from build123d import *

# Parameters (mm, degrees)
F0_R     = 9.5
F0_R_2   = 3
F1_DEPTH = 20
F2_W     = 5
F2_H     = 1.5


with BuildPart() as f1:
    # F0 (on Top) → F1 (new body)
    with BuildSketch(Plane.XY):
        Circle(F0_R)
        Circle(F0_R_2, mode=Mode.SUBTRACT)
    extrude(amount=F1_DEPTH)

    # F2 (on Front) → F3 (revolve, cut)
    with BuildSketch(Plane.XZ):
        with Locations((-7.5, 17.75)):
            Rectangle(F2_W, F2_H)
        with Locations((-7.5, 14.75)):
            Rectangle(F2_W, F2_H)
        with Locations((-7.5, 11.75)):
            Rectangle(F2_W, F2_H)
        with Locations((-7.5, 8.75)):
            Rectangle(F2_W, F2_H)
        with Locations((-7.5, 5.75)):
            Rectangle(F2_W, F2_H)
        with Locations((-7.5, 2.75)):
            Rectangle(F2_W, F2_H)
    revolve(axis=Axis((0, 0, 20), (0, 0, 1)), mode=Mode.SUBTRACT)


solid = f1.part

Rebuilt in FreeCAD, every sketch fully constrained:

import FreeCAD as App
import Part
import Sketcher
Q = App.Units.Quantity


def add_polygon(sketch, points):
    """Adds a closed chain of lines whose ends are joined by coincident constraints."""
    first, n = sketch.GeometryCount, len(points)
    for a, b in zip(points, points[1:] + points[:1]):
        sketch.addGeometry(Part.LineSegment(App.Vector(*a, 0), App.Vector(*b, 0)), False)
    for i in range(n):
        sketch.addConstraint(Sketcher.Constraint("Coincident", first + i, 2, first + (i + 1) % n, 1))

doc = App.newDocument("Part")
params = doc.addObject("Spreadsheet::Sheet", "Params")
for row, (alias, value) in enumerate([
    ("sketch1_diameter", "19 mm"),
    ("sketch1_diameter2", "6 mm"),
    ("pad1_length", "20 mm"),
    ("sketch2_width", "5 mm"),
    ("sketch2_height", "1.5 mm"),
    ("groove_angle", "360 deg"),
], start=1):
    params.set(f"A{row}", alias)
    params.set(f"B{row}", "=" + value)
    params.setAlias(f"B{row}", alias)

body = doc.addObject("PartDesign::Body", "Body")

# Sketch on XY plane
sketch1 = doc.addObject("Sketcher::SketchObject", "Sketch")
body.addObject(sketch1)
sketch1.AttachmentSupport = (doc.XY_Plane, [""])
sketch1.MapMode = "FlatFace"
sketch1.addGeometry([
    Part.Circle(App.Vector(0, 0, 0), App.Vector(0, 0, 1), 9.5),
    Part.Circle(App.Vector(0, 0, 0), App.Vector(0, 0, 1), 3),
], False)
sketch1.addConstraint([
    Sketcher.Constraint("Coincident", 0, 3, -1, 1),
    Sketcher.Constraint("Coincident", 1, 3, -1, 1),
    Sketcher.Constraint("Diameter", 0, Q("19 mm")),
    Sketcher.Constraint("Diameter", 1, Q("6 mm")),
])
sketch1.setExpression("Constraints[2]", "Params.sketch1_diameter")
sketch1.setExpression("Constraints[3]", "Params.sketch1_diameter2")
pad1 = doc.addObject("PartDesign::Pad", "Pad")
body.addObject(pad1)
pad1.Profile = sketch1
pad1.setExpression("Length", "Params.pad1_length")

# Sketch on XZ plane
sketch2 = doc.addObject("Sketcher::SketchObject", "Sketch001")
body.addObject(sketch2)
sketch2.AttachmentSupport = (doc.XZ_Plane, [""])
sketch2.MapMode = "FlatFace"
add_polygon(sketch2, [(-10, 18.5), (-10, 17), (-5, 17), (-5, 18.5)])  # lines 0-3
add_polygon(sketch2, [(-10, 15.5), (-10, 14), (-5, 14), (-5, 15.5)])  # lines 4-7
add_polygon(sketch2, [(-10, 12.5), (-10, 11), (-5, 11), (-5, 12.5)])  # lines 8-11
add_polygon(sketch2, [(-10, 9.5), (-10, 8), (-5, 8), (-5, 9.5)])  # lines 12-15
add_polygon(sketch2, [(-10, 6.5), (-10, 5), (-5, 5), (-5, 6.5)])  # lines 16-19
add_polygon(sketch2, [(-10, 3.5), (-10, 2), (-5, 2), (-5, 3.5)])  # lines 20-23
sketch2.addConstraint([
    Sketcher.Constraint("Vertical", 0),
    Sketcher.Constraint("Horizontal", 1),
    Sketcher.Constraint("Vertical", 2),
    Sketcher.Constraint("Horizontal", 3),
    Sketcher.Constraint("Vertical", 4),
    Sketcher.Constraint("Horizontal", 5),
    Sketcher.Constraint("Vertical", 6),
    Sketcher.Constraint("Horizontal", 7),
    Sketcher.Constraint("Vertical", 8),
    Sketcher.Constraint("Horizontal", 9),
    Sketcher.Constraint("Vertical", 10),
    Sketcher.Constraint("Horizontal", 11),
    Sketcher.Constraint("Vertical", 12),
    Sketcher.Constraint("Horizontal", 13),
    Sketcher.Constraint("Vertical", 14),
    Sketcher.Constraint("Horizontal", 15),
    Sketcher.Constraint("Vertical", 16),
    Sketcher.Constraint("Horizontal", 17),
    Sketcher.Constraint("Vertical", 18),
    Sketcher.Constraint("Horizontal", 19),
    Sketcher.Constraint("Vertical", 20),
    Sketcher.Constraint("Horizontal", 21),
    Sketcher.Constraint("Vertical", 22),
    Sketcher.Constraint("Horizontal", 23),
    Sketcher.Constraint("Vertical", 3, 2, 4, 2),
    Sketcher.Constraint("Vertical", 2, 2, 5, 2),
    Sketcher.Constraint("Vertical", 7, 2, 8, 2),
    Sketcher.Constraint("Vertical", 6, 2, 9, 2),
    Sketcher.Constraint("Vertical", 11, 2, 12, 2),
    Sketcher.Constraint("Vertical", 10, 2, 13, 2),
    Sketcher.Constraint("Vertical", 15, 2, 16, 2),
    Sketcher.Constraint("Vertical", 14, 2, 17, 2),
    Sketcher.Constraint("Vertical", 19, 2, 20, 2),
    Sketcher.Constraint("Vertical", 18, 2, 21, 2),
    Sketcher.Constraint("Equal", 2, 4),
    Sketcher.Constraint("Equal", 6, 8),
    Sketcher.Constraint("Equal", 10, 12),
    Sketcher.Constraint("Equal", 14, 16),
    Sketcher.Constraint("Equal", 18, 20),
    Sketcher.Constraint("DistanceX", 1, 1, 1, 2, Q("5 mm")),
    Sketcher.Constraint("DistanceY", 0, 2, 0, 1, Q("1.5 mm")),
    Sketcher.Constraint("DistanceX", 0, 2, -1, 1, Q("10 mm")),
    Sketcher.Constraint("DistanceY", -1, 1, 0, 2, Q("17 mm")),
    Sketcher.Constraint("DistanceY", -1, 1, 4, 2, Q("14 mm")),
    Sketcher.Constraint("DistanceY", -1, 1, 8, 2, Q("11 mm")),
    Sketcher.Constraint("DistanceY", -1, 1, 12, 2, Q("8 mm")),
    Sketcher.Constraint("DistanceY", -1, 1, 16, 2, Q("5 mm")),
    Sketcher.Constraint("DistanceY", -1, 1, 20, 2, Q("2 mm")),
])
sketch2.setExpression("Constraints[63]", "Params.sketch2_width")
sketch2.setExpression("Constraints[64]", "Params.sketch2_height")
groove = doc.addObject("PartDesign::Groove", "Groove")
body.addObject(groove)
groove.Profile = sketch2
groove.ReferenceAxis = (sketch2, ["V_Axis"])
groove.setExpression("Angle", "Params.groove_angle")

doc.recompute()
